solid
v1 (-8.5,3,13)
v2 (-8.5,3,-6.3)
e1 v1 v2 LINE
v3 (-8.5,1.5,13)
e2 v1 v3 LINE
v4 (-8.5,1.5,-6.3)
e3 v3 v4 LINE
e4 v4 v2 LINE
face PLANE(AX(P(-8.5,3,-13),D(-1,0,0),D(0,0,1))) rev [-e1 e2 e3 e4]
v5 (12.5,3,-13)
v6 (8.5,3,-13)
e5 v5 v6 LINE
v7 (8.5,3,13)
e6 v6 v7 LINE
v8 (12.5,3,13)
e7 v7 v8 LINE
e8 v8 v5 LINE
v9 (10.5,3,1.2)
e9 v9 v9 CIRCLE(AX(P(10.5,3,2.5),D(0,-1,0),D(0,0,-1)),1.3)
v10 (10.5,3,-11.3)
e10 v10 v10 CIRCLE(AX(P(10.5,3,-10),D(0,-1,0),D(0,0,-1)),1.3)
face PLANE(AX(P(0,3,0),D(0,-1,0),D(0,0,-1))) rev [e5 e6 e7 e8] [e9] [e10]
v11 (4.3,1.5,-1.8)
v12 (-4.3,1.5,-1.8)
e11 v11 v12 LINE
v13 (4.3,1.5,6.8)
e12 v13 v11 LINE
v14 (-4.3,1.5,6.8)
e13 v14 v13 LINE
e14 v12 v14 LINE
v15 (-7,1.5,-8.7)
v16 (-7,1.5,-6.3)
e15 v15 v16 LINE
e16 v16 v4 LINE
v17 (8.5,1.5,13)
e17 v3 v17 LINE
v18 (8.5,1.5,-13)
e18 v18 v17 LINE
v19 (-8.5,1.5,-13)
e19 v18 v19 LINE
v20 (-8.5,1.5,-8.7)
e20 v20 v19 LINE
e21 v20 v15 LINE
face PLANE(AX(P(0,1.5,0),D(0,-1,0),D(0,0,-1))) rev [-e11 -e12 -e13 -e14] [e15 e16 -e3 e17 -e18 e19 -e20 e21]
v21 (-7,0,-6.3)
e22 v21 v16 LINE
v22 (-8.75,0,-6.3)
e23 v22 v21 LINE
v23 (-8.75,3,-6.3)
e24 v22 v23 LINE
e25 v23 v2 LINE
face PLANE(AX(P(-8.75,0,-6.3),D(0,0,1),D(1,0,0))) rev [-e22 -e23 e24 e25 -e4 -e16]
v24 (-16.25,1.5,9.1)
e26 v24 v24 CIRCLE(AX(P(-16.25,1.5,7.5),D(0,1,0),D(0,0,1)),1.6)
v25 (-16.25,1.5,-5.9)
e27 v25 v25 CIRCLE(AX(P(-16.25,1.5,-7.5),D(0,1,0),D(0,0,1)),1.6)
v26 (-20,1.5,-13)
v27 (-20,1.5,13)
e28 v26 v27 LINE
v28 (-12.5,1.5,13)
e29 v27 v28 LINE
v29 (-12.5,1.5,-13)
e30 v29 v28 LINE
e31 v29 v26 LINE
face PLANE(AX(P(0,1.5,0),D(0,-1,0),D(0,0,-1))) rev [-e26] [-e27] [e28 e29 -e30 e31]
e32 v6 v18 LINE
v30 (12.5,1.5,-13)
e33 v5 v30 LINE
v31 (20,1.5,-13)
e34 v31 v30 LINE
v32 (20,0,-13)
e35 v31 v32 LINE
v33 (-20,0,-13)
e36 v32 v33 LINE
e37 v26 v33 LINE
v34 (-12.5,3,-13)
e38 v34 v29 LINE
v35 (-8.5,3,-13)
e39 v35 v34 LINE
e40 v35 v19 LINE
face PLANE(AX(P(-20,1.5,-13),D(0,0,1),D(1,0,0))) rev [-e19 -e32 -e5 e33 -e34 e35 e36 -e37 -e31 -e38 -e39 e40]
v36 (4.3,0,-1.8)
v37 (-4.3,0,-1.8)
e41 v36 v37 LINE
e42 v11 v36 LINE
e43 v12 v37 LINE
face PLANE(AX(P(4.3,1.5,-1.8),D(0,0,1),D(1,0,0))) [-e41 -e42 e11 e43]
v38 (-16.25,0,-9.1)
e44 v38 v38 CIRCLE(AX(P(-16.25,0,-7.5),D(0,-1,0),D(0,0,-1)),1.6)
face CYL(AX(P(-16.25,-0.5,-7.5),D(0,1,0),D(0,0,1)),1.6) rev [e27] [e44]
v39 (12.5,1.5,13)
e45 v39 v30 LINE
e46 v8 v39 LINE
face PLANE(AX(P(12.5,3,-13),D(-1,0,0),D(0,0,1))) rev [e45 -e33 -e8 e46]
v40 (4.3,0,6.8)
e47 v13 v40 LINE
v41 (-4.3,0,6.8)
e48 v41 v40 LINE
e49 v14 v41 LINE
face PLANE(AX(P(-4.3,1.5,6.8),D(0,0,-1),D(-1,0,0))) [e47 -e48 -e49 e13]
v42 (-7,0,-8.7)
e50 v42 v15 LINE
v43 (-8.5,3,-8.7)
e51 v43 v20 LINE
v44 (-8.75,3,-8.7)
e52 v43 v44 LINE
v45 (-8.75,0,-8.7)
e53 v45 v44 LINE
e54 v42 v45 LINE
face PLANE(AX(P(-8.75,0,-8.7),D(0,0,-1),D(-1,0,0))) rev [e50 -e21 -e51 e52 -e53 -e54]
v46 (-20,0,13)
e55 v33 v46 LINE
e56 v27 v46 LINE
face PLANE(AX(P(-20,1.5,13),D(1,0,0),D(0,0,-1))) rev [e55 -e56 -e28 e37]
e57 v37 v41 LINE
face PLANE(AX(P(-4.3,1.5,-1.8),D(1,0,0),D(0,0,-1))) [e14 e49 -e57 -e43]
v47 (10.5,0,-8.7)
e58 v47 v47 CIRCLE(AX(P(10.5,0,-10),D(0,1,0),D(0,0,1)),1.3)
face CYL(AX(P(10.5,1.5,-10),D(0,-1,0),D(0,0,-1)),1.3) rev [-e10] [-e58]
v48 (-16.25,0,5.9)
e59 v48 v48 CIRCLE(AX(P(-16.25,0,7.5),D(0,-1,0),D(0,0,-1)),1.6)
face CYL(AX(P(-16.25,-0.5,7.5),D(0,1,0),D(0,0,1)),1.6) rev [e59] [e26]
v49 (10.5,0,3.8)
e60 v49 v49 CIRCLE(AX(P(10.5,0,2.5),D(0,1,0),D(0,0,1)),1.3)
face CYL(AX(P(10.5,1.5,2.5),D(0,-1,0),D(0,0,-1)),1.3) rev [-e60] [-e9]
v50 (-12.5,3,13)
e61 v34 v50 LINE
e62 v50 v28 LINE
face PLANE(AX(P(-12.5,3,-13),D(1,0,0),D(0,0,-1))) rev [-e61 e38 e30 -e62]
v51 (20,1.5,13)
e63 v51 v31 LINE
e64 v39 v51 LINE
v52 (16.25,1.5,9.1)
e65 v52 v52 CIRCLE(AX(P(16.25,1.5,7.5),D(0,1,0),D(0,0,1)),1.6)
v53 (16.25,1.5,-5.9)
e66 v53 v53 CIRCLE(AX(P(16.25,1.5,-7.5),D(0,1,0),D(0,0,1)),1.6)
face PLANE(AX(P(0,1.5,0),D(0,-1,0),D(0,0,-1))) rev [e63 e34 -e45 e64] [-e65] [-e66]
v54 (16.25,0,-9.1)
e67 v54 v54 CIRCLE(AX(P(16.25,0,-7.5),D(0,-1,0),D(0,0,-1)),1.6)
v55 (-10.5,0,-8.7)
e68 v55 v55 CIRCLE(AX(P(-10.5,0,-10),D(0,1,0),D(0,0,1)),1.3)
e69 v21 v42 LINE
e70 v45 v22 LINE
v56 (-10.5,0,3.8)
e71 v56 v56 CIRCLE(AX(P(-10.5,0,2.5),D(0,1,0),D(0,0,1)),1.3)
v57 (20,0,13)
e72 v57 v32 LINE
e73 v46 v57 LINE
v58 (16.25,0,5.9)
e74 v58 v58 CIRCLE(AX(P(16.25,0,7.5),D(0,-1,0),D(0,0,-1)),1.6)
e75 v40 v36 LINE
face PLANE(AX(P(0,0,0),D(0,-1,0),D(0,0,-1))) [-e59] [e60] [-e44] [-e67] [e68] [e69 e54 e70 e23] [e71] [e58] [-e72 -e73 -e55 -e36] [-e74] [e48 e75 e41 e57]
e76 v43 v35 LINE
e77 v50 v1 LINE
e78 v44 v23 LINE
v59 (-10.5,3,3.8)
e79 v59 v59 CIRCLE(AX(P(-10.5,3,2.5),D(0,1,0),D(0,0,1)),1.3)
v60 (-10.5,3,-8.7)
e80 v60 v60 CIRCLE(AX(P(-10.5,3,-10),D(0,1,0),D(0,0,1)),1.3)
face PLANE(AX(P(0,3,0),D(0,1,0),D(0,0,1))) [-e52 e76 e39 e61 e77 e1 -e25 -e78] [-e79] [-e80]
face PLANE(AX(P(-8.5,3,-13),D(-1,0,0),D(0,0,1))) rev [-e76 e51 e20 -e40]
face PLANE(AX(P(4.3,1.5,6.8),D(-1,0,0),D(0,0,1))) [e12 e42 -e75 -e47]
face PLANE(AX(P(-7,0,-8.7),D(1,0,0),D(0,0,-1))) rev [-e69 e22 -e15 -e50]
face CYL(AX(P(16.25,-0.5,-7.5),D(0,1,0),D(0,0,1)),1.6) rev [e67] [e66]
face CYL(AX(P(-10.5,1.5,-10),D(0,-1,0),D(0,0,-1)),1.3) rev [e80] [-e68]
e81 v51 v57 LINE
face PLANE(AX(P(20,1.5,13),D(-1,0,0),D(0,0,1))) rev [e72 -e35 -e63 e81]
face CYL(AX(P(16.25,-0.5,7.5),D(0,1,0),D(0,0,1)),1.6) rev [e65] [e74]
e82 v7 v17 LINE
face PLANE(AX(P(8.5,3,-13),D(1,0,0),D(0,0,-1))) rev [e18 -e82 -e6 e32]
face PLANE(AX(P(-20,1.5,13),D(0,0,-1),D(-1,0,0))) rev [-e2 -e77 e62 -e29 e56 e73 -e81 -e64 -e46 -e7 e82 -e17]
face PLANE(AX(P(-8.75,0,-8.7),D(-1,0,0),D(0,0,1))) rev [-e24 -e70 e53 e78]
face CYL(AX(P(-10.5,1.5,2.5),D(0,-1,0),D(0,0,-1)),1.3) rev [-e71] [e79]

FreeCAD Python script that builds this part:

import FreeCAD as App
import Part
import Sketcher

doc = App.newDocument("Part")
body = doc.addObject("PartDesign::Body", "Body")

# Sketch on XZ plane
sketch1 = body.newObject("Sketcher::SketchObject", "Sketch")
sketch1.AttachmentSupport = (doc.getObject("XZ_Plane"), [""])
sketch1.MapMode = "FlatFace"
sketch1.addGeometry([
    Part.LineSegment(App.Vector(-20, -13, 0), App.Vector(-20, 13, 0)),  # 0
    Part.LineSegment(App.Vector(-20, 13, 0), App.Vector(20, 13, 0)),  # 1
    Part.LineSegment(App.Vector(20, 13, 0), App.Vector(20, -13, 0)),  # 2
    Part.LineSegment(App.Vector(20, -13, 0), App.Vector(-20, -13, 0)),  # 3
    Part.Circle(App.Vector(-10.5, 2.5, 0), App.Vector(0, 0, 1), 1.3),  # 4
    Part.LineSegment(App.Vector(4.3, 6.8, 0), App.Vector(-4.3, 6.8, 0)),  # 5
    Part.LineSegment(App.Vector(-4.3, 6.8, 0), App.Vector(-4.3, -1.8, 0)),  # 6
    Part.LineSegment(App.Vector(-4.3, -1.8, 0), App.Vector(4.3, -1.8, 0)),  # 7
    Part.LineSegment(App.Vector(4.3, -1.8, 0), App.Vector(4.3, 6.8, 0)),  # 8
    Part.Circle(App.Vector(10.5, 2.5, 0), App.Vector(0, 0, 1), 1.3),  # 9
    Part.Circle(App.Vector(-10.5, -10, 0), App.Vector(0, 0, 1), 1.3),  # 10
    Part.Circle(App.Vector(10.5, -10, 0), App.Vector(0, 0, 1), 1.3),  # 11
], False)
sketch1.addConstraint([
    Sketcher.Constraint("Coincident", 0, 2, 1, 1),
    Sketcher.Constraint("Coincident", 1, 2, 2, 1),
    Sketcher.Constraint("Coincident", 2, 2, 3, 1),
    Sketcher.Constraint("Coincident", 3, 2, 0, 1),
    Sketcher.Constraint("Coincident", 5, 2, 6, 1),
    Sketcher.Constraint("Coincident", 6, 2, 7, 1),
    Sketcher.Constraint("Coincident", 7, 2, 8, 1),
    Sketcher.Constraint("Coincident", 8, 2, 5, 1),
    Sketcher.Constraint("Vertical", 0),
    Sketcher.Constraint("Horizontal", 1),
    Sketcher.Constraint("Vertical", 2),
    Sketcher.Constraint("Horizontal", 3),
    Sketcher.Constraint("Horizontal", 5),
    Sketcher.Constraint("Vertical", 6),
    Sketcher.Constraint("Horizontal", 7),
    Sketcher.Constraint("Vertical", 8),
    Sketcher.Constraint("Equal", 4, 9),
    Sketcher.Constraint("Equal", 9, 10),
    Sketcher.Constraint("Equal", 10, 11),
    Sketcher.Constraint("Symmetric", 0, 2, 2, 2, -1, 1),
    Sketcher.Constraint("Symmetric", 4, 3, 9, 3, -2),
    Sketcher.Constraint("Symmetric", 10, 3, 11, 3, -2),
    Sketcher.Constraint("Vertical", 4, 3, 10, 3),
    Sketcher.Constraint("Equal", 7, 6),
    Sketcher.Constraint("Diameter", 4, 2.6),
    Sketcher.Constraint("DistanceX", 1, 1, 1, 2, 40.0),
    Sketcher.Constraint("DistanceY", 0, 1, 0, 2, 26.0),
    Sketcher.Constraint("DistanceX", 5, 2, 5, 1, 8.6),
    Sketcher.Constraint("DistanceY", 10, 3, -1, 1, 10.0),
    Sketcher.Constraint("DistanceX", 4, 3, 9, 3, 21.0),
    Sketcher.Constraint("DistanceY", -1, 1, 4, 3, 2.5),
    Sketcher.Constraint("DistanceX", 5, 2, -1, 1, 4.3),
    Sketcher.Constraint("DistanceY", -1, 1, 5, 2, 6.8),
])
pad1 = body.newObject("PartDesign::Pad", "Pad")
pad1.Profile = sketch1
pad1.Length = 1.5
pad1.Reversed = True

# Sketch on XZ plane
sketch2 = body.newObject("Sketcher::SketchObject", "Sketch001")
sketch2.AttachmentSupport = (doc.getObject("XZ_Plane"), [""])
sketch2.MapMode = "FlatFace"
sketch2.AttachmentOffset = App.Placement(App.Vector(0, 0, -1.5), App.Rotation())
sketch2.addGeometry([
    Part.LineSegment(App.Vector(-12.5, -13, 0), App.Vector(-12.5, 13, 0)),  # 0
    Part.LineSegment(App.Vector(-12.5, 13, 0), App.Vector(-8.5, 13, 0)),  # 1
    Part.LineSegment(App.Vector(-8.5, 13, 0), App.Vector(-8.5, -13, 0)),  # 2
    Part.LineSegment(App.Vector(-8.5, -13, 0), App.Vector(-12.5, -13, 0)),  # 3
    Part.LineSegment(App.Vector(8.5, -13, 0), App.Vector(8.5, 13, 0)),  # 4
    Part.LineSegment(App.Vector(8.5, 13, 0), App.Vector(12.5, 13, 0)),  # 5
    Part.LineSegment(App.Vector(12.5, 13, 0), App.Vector(12.5, -13, 0)),  # 6
    Part.LineSegment(App.Vector(12.5, -13, 0), App.Vector(8.5, -13, 0)),  # 7
], False)
sketch2.addConstraint([
    Sketcher.Constraint("Coincident", 0, 2, 1, 1),
    Sketcher.Constraint("Coincident", 1, 2, 2, 1),
    Sketcher.Constraint("Coincident", 2, 2, 3, 1),
    Sketcher.Constraint("Coincident", 3, 2, 0, 1),
    Sketcher.Constraint("Coincident", 4, 2, 5, 1),
    Sketcher.Constraint("Coincident", 5, 2, 6, 1),
    Sketcher.Constraint("Coincident", 6, 2, 7, 1),
    Sketcher.Constraint("Coincident", 7, 2, 4, 1),
    Sketcher.Constraint("Vertical", 0),
    Sketcher.Constraint("Horizontal", 1),
    Sketcher.Constraint("Vertical", 2),
    Sketcher.Constraint("Horizontal", 3),
    Sketcher.Constraint("Vertical", 4),
    Sketcher.Constraint("Horizontal", 5),
    Sketcher.Constraint("Vertical", 6),
    Sketcher.Constraint("Horizontal", 7),
    Sketcher.Constraint("Symmetric", 2, 2, 4, 2, -1, 1),
    Sketcher.Constraint("Symmetric", 0, 2, 6, 2, -1, 1),
    Sketcher.Constraint("Horizontal", 1, 2, 4, 2),
    Sketcher.Constraint("DistanceX", 1, 1, 1, 2, 4.0),
    Sketcher.Constraint("DistanceY", 0, 1, 0, 2, 26.0),
    Sketcher.Constraint("DistanceX", 1, 2, 4, 2, 17.0),
])
pad2 = body.newObject("PartDesign::Pad", "Pad001")
pad2.Profile = sketch2
pad2.Length = 1.5
pad2.Reversed = True

# Sketch on XZ plane
sketch3 = body.newObject("Sketcher::SketchObject", "Sketch002")
sketch3.AttachmentSupport = (doc.getObject("XZ_Plane"), [""])
sketch3.MapMode = "FlatFace"
sketch3.addGeometry([
    Part.Circle(App.Vector(-10.5, 2.5, 0), App.Vector(0, 0, 1), 1.3),
    Part.Circle(App.Vector(10.5, -10, 0), App.Vector(0, 0, 1), 1.3),
    Part.Circle(App.Vector(10.5, 2.5, 0), App.Vector(0, 0, 1), 1.3),
    Part.Circle(App.Vector(-10.5, -10, 0), App.Vector(0, 0, 1), 1.3),
], False)
sketch3.addConstraint([
    Sketcher.Constraint("Equal", 0, 1),
    Sketcher.Constraint("Equal", 1, 2),
    Sketcher.Constraint("Equal", 2, 3),
    Sketcher.Constraint("Symmetric", 0, 3, 2, 3, -2),
    Sketcher.Constraint("Symmetric", 1, 3, 3, 3, -2),
    Sketcher.Constraint("Vertical", 1, 3, 2, 3),
    Sketcher.Constraint("Diameter", 0, 2.6),
    Sketcher.Constraint("DistanceY", 1, 3, -1, 1, 10.0),
    Sketcher.Constraint("DistanceX", 0, 3, 1, 3, 21.0),
    Sketcher.Constraint("DistanceY", -1, 1, 0, 3, 2.5),
])
pocket1 = body.newObject("PartDesign::Pocket", "Pocket")
pocket1.Profile = sketch3
pocket1.Type = "ThroughAll"

# Sketch on XZ plane
sketch4 = body.newObject("Sketcher::SketchObject", "Sketch003")
sketch4.AttachmentSupport = (doc.getObject("XZ_Plane"), [""])
sketch4.MapMode = "FlatFace"
sketch4.AttachmentOffset = App.Placement(App.Vector(0, 0, -1.5), App.Rotation())
sketch4.addGeometry([
    Part.LineSegment(App.Vector(-8.8, -8.7, 0), App.Vector(-8.8, -6.3, 0)),
    Part.LineSegment(App.Vector(-8.8, -6.3, 0), App.Vector(-7, -6.3, 0)),
    Part.LineSegment(App.Vector(-7, -6.3, 0), App.Vector(-7, -8.7, 0)),
    Part.LineSegment(App.Vector(-7, -8.7, 0), App.Vector(-8.8, -8.7, 0)),
], False)
sketch4.addConstraint([
    Sketcher.Constraint("Coincident", 0, 2, 1, 1),
    Sketcher.Constraint("Coincident", 1, 2, 2, 1),
    Sketcher.Constraint("Coincident", 2, 2, 3, 1),
    Sketcher.Constraint("Coincident", 3, 2, 0, 1),
    Sketcher.Constraint("Vertical", 0),
    Sketcher.Constraint("Horizontal", 1),
    Sketcher.Constraint("Vertical", 2),
    Sketcher.Constraint("Horizontal", 3),
    Sketcher.Constraint("DistanceY", 0, 1, 0, 2, 2.4),
    Sketcher.Constraint("DistanceX", 1, 2, -1, 1, 7.0),
    Sketcher.Constraint("DistanceX", 1, 1, 1, 2, 1.75),
    Sketcher.Constraint("DistanceY", 0, 2, -1, 1, 6.3),
])
pocket2 = body.newObject("PartDesign::Pocket", "Pocket001")
pocket2.Profile = sketch4
pocket2.Type = "ThroughAll"
pocket2.Midplane = True

# Sketch on XZ plane
sketch5 = body.newObject("Sketcher::SketchObject", "Sketch004")
sketch5.AttachmentSupport = (doc.getObject("XZ_Plane"), [""])
sketch5.MapMode = "FlatFace"
sketch5.AttachmentOffset = App.Placement(App.Vector(0, 0, -1.5), App.Rotation())
sketch5.addGeometry([
    Part.Circle(App.Vector(16.2, -7.5, 0), App.Vector(0, 0, 1), 1.6),
    Part.Circle(App.Vector(16.2, 7.5, 0), App.Vector(0, 0, 1), 1.6),
    Part.Circle(App.Vector(-16.2, 7.5, 0), App.Vector(0, 0, 1), 1.6),
    Part.Circle(App.Vector(-16.2, -7.5, 0), App.Vector(0, 0, 1), 1.6),
], False)
sketch5.addConstraint([
    Sketcher.Constraint("Equal", 0, 1),
    Sketcher.Constraint("Equal", 1, 2),
    Sketcher.Constraint("Equal", 2, 3),
    Sketcher.Constraint("Symmetric", 0, 3, 2, 3, -1, 1),
    Sketcher.Constraint("Symmetric", 1, 3, 3, 3, -1, 1),
    Sketcher.Constraint("Symmetric", 1, 3, 2, 3, -2),
    Sketcher.Constraint("Diameter", 0, 3.2),
    Sketcher.Constraint("DistanceY", 0, 3, 1, 3, 15.0),
    Sketcher.Constraint("DistanceX", 2, 3, 1, 3, 32.5),
])
pocket3 = body.newObject("PartDesign::Pocket", "Pocket002")
pocket3.Profile = sketch5
pocket3.Length = 2
pocket3.Reversed = True

doc.recompute()
